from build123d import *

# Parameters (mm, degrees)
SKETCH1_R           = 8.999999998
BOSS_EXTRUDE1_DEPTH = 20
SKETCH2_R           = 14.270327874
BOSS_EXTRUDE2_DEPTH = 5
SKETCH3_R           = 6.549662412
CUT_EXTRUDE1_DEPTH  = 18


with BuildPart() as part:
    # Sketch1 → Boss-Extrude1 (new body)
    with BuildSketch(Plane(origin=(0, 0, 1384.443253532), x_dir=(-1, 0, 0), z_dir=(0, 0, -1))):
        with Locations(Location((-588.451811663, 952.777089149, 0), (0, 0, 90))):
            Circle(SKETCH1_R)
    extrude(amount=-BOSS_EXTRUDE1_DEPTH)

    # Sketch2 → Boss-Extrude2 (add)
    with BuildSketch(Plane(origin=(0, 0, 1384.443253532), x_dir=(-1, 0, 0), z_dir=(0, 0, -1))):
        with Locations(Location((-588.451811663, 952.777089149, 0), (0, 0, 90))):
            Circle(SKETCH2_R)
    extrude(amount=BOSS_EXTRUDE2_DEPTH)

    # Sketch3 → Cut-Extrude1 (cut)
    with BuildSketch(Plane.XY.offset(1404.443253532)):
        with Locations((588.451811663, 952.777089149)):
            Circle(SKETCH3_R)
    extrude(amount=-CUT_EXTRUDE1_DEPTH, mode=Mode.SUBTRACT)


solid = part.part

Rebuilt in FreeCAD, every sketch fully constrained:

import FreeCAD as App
import Part
import Sketcher
from FreeCAD import Vector

doc = App.newDocument("Part")
params = doc.addObject("Spreadsheet::Sheet", "Params")
for row, (alias, value) in enumerate([
    ("sketch1_diameter", "18 mm"),
    ("pad1_length", "20 mm"),
    ("pad2_length", "5 mm"),
    ("pocket1_length", "18 mm"),
], start=1):
    params.set(f"A{row}", alias)
    params.set(f"B{row}", "=" + value)
    params.setAlias(f"B{row}", alias)

body = doc.addObject("PartDesign::Body", "Body")

sketch1 = body.newObject("Sketcher::SketchObject", "Sketch")
sketch1.AttachmentSupport = (doc.getObject("XY_Plane"), [""])
sketch1.MapMode = "FlatFace"
sketch1.AttachmentOffset = App.Placement(Vector(0, 0, 1384.443254), App.Rotation())
sketch1.addGeometry(Part.Circle(Vector(588, 953, 0), Vector(0, 0, 1), 9), False)
sketch1.addConstraint(Sketcher.Constraint("Diameter", 0, 18.0))
sketch1.addConstraint(Sketcher.Constraint("DistanceX", -1, 1, 0, 3, 588.451812))
sketch1.addConstraint(Sketcher.Constraint("DistanceY", -1, 1, 0, 3, 952.777089))
sketch1.setExpression("Constraints[0]", "Params.sketch1_diameter")
pad1 = body.newObject("PartDesign::Pad", "Pad")
pad1.Profile = sketch1
pad1.setExpression("Length", "Params.pad1_length")

sketch2 = body.newObject("Sketcher::SketchObject", "Sketch001")
sketch2.AttachmentSupport = (doc.getObject("XY_Plane"), [""])
sketch2.MapMode = "FlatFace"
sketch2.AttachmentOffset = App.Placement(Vector(0, 0, 1384.443254), App.Rotation())
sketch2.addGeometry(Part.Circle(Vector(588, 953, 0), Vector(0, 0, 1), 14), False)
sketch2.addConstraint(Sketcher.Constraint("Diameter", 0, 28.540656))
sketch2.addConstraint(Sketcher.Constraint("DistanceX", -1, 1, 0, 3, 588.451812))
sketch2.addConstraint(Sketcher.Constraint("DistanceY", -1, 1, 0, 3, 952.777089))
pad2 = body.newObject("PartDesign::Pad", "Pad001")
pad2.Profile = sketch2
pad2.setExpression("Length", "Params.pad2_length")
pad2.Reversed = True

sketch3 = body.newObject("Sketcher::SketchObject", "Sketch002")
sketch3.AttachmentSupport = (doc.getObject("XY_Plane"), [""])
sketch3.MapMode = "FlatFace"
sketch3.AttachmentOffset = App.Placement(Vector(0, 0, 1404.443254), App.Rotation())
sketch3.addGeometry(Part.Circle(Vector(588, 953, 0), Vector(0, 0, 1), 7), False)
sketch3.addConstraint(Sketcher.Constraint("Diameter", 0, 13.099325))
sketch3.addConstraint(Sketcher.Constraint("DistanceX", -1, 1, 0, 3, 588.451812))
sketch3.addConstraint(Sketcher.Constraint("DistanceY", -1, 1, 0, 3, 952.777089))
pocket1 = body.newObject("PartDesign::Pocket", "Pocket")
pocket1.Profile = sketch3
pocket1.setExpression("Length", "Params.pocket1_length")

doc.recompute()
